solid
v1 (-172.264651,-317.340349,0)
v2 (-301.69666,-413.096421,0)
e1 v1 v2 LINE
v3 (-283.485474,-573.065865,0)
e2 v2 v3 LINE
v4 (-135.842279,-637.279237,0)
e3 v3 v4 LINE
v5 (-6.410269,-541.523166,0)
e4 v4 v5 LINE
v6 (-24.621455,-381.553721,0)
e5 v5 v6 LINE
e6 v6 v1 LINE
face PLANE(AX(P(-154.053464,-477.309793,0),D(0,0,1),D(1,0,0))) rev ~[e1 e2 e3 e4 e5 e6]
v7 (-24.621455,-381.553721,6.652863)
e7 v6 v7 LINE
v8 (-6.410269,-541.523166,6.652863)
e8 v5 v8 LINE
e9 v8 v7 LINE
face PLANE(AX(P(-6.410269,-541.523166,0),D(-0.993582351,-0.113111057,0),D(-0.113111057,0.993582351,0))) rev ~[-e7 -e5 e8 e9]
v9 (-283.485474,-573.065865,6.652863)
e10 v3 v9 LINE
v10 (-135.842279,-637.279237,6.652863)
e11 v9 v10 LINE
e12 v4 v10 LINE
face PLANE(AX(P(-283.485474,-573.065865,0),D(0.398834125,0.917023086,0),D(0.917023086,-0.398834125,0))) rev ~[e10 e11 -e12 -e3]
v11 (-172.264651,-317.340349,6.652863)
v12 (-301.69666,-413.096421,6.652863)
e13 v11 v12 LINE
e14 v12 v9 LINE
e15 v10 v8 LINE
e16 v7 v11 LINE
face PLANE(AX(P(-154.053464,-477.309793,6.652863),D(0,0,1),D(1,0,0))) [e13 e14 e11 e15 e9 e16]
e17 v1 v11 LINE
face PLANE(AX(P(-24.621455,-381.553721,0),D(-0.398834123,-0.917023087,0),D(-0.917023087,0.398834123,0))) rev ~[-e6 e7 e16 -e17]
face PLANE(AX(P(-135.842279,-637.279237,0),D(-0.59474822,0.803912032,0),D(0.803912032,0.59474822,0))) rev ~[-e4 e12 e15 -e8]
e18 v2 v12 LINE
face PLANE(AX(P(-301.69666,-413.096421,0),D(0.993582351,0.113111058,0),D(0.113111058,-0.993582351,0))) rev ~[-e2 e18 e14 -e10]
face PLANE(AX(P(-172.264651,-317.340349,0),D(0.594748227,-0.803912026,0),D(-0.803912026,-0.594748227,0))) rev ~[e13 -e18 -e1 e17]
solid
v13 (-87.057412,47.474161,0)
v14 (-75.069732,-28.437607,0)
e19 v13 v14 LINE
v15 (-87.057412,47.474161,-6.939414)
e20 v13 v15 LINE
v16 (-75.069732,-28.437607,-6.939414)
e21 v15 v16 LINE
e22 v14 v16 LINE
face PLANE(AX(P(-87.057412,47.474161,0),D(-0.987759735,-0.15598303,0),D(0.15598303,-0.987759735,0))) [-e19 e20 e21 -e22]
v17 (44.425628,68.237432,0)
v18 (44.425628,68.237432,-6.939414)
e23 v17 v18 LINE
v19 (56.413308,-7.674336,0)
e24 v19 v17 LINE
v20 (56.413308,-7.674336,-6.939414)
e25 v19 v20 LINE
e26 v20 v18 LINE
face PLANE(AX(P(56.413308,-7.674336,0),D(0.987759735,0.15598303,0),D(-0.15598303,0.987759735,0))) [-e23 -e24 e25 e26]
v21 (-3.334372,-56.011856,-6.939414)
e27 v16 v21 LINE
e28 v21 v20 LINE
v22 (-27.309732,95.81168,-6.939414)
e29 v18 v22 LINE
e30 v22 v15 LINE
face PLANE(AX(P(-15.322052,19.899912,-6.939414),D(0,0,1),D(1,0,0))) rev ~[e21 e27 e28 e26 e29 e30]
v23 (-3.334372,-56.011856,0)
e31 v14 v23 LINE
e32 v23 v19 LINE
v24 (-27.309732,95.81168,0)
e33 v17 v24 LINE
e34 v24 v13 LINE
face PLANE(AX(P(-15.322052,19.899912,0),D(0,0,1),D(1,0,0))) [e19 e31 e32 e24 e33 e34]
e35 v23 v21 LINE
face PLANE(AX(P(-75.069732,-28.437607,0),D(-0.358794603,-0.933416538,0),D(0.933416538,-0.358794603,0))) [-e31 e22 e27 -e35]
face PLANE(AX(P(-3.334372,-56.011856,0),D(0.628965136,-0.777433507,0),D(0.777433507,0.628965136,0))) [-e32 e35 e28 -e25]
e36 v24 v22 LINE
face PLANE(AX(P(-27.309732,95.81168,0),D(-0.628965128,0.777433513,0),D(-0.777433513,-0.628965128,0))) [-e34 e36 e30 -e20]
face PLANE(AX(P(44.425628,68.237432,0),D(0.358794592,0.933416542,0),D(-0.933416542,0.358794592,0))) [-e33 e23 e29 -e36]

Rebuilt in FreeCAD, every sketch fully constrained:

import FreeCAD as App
import Part
import Sketcher
from FreeCAD import Vector


def add_polygon(sketch, points):
    """Adds a closed chain of lines whose ends are joined by coincident constraints."""
    first, n = sketch.GeometryCount, len(points)
    for a, b in zip(points, points[1:] + points[:1]):
        sketch.addGeometry(Part.LineSegment(App.Vector(*a, 0), App.Vector(*b, 0)), False)
    for i in range(n):
        sketch.addConstraint(Sketcher.Constraint("Coincident", first + i, 2, first + (i + 1) % n, 1))

doc = App.newDocument("Part")
body = doc.addObject("PartDesign::Body", "Body")

sketch1 = doc.addObject("Sketcher::SketchObject", "Sketch")
body.addObject(sketch1)
sketch1.AttachmentSupport = (doc.XY_Plane, [""])
sketch1.MapMode = "FlatFace"
add_polygon(sketch1, [(-75.069732, -28.437607), (-3.334372, -56.011856), (56.413308, -7.674336), (44.425628, 68.237432), (-27.309732, 95.81168), (-87.057412, 47.474161)])
sketch1.addConstraint([
    Sketcher.Constraint("Parallel", 0, 3),
    Sketcher.Constraint("Parallel", 1, 4),
    Sketcher.Constraint("Parallel", 2, 5),
    Sketcher.Constraint("Equal", 0, 1),
    Sketcher.Constraint("Equal", 1, 2),
    Sketcher.Constraint("Equal", 2, 3),
    Sketcher.Constraint("DistanceX", 0, 2, 2, 2, 47.76),
    Sketcher.Constraint("DistanceX", -1, 1, 2, 2, 44.425628),
    Sketcher.Constraint("DistanceY", -1, 1, 2, 2, 68.237432),
    Sketcher.Constraint("DistanceY", -1, 1, 3, 2, 95.81168),
    Sketcher.Constraint("DistanceX", 4, 2, -1, 1, 87.057412),
    Sketcher.Constraint("DistanceY", -1, 1, 4, 2, 47.474161),
])
pad1 = doc.addObject("PartDesign::Pad", "Pad")
body.addObject(pad1)
pad1.Profile = sketch1
pad1.Length = 6.939414
pad1.Reversed = True
body2 = doc.addObject("PartDesign::Body", "Body001")

sketch2 = doc.addObject("Sketcher::SketchObject", "Sketch001")
body2.addObject(sketch2)
sketch2.AttachmentSupport = (doc.getObject("XY_Plane001"), [""])
sketch2.MapMode = "FlatFace"
add_polygon(sketch2, [(-135.842279, -637.279237), (-6.410269, -541.523166), (-24.621455, -381.553721), (-172.264651, -317.340349), (-301.69666, -413.096421), (-283.485474, -573.065865)])
sketch2.addConstraint([
    Sketcher.Constraint("Parallel", 0, 3),
    Sketcher.Constraint("Parallel", 1, 4),
    Sketcher.Constraint("Parallel", 2, 5),
    Sketcher.Constraint("Equal", 0, 1),
    Sketcher.Constraint("Equal", 1, 2),
    Sketcher.Constraint("Equal", 2, 3),
    Sketcher.Constraint("DistanceY", 3, 2, 1, 2, 31.5427),
    Sketcher.Constraint("DistanceX", 0, 2, -1, 1, 6.410269),
    Sketcher.Constraint("DistanceY", 1, 2, -1, 1, 381.553721),
    Sketcher.Constraint("DistanceX", 2, 2, -1, 1, 172.264651),
    Sketcher.Constraint("DistanceY", 2, 2, -1, 1, 317.340349),
    Sketcher.Constraint("DistanceX", 3, 2, -1, 1, 301.69666),
])
pad2 = doc.addObject("PartDesign::Pad", "Pad001")
body2.addObject(pad2)
pad2.Profile = sketch2
pad2.Length = 6.652863

doc.recompute()
